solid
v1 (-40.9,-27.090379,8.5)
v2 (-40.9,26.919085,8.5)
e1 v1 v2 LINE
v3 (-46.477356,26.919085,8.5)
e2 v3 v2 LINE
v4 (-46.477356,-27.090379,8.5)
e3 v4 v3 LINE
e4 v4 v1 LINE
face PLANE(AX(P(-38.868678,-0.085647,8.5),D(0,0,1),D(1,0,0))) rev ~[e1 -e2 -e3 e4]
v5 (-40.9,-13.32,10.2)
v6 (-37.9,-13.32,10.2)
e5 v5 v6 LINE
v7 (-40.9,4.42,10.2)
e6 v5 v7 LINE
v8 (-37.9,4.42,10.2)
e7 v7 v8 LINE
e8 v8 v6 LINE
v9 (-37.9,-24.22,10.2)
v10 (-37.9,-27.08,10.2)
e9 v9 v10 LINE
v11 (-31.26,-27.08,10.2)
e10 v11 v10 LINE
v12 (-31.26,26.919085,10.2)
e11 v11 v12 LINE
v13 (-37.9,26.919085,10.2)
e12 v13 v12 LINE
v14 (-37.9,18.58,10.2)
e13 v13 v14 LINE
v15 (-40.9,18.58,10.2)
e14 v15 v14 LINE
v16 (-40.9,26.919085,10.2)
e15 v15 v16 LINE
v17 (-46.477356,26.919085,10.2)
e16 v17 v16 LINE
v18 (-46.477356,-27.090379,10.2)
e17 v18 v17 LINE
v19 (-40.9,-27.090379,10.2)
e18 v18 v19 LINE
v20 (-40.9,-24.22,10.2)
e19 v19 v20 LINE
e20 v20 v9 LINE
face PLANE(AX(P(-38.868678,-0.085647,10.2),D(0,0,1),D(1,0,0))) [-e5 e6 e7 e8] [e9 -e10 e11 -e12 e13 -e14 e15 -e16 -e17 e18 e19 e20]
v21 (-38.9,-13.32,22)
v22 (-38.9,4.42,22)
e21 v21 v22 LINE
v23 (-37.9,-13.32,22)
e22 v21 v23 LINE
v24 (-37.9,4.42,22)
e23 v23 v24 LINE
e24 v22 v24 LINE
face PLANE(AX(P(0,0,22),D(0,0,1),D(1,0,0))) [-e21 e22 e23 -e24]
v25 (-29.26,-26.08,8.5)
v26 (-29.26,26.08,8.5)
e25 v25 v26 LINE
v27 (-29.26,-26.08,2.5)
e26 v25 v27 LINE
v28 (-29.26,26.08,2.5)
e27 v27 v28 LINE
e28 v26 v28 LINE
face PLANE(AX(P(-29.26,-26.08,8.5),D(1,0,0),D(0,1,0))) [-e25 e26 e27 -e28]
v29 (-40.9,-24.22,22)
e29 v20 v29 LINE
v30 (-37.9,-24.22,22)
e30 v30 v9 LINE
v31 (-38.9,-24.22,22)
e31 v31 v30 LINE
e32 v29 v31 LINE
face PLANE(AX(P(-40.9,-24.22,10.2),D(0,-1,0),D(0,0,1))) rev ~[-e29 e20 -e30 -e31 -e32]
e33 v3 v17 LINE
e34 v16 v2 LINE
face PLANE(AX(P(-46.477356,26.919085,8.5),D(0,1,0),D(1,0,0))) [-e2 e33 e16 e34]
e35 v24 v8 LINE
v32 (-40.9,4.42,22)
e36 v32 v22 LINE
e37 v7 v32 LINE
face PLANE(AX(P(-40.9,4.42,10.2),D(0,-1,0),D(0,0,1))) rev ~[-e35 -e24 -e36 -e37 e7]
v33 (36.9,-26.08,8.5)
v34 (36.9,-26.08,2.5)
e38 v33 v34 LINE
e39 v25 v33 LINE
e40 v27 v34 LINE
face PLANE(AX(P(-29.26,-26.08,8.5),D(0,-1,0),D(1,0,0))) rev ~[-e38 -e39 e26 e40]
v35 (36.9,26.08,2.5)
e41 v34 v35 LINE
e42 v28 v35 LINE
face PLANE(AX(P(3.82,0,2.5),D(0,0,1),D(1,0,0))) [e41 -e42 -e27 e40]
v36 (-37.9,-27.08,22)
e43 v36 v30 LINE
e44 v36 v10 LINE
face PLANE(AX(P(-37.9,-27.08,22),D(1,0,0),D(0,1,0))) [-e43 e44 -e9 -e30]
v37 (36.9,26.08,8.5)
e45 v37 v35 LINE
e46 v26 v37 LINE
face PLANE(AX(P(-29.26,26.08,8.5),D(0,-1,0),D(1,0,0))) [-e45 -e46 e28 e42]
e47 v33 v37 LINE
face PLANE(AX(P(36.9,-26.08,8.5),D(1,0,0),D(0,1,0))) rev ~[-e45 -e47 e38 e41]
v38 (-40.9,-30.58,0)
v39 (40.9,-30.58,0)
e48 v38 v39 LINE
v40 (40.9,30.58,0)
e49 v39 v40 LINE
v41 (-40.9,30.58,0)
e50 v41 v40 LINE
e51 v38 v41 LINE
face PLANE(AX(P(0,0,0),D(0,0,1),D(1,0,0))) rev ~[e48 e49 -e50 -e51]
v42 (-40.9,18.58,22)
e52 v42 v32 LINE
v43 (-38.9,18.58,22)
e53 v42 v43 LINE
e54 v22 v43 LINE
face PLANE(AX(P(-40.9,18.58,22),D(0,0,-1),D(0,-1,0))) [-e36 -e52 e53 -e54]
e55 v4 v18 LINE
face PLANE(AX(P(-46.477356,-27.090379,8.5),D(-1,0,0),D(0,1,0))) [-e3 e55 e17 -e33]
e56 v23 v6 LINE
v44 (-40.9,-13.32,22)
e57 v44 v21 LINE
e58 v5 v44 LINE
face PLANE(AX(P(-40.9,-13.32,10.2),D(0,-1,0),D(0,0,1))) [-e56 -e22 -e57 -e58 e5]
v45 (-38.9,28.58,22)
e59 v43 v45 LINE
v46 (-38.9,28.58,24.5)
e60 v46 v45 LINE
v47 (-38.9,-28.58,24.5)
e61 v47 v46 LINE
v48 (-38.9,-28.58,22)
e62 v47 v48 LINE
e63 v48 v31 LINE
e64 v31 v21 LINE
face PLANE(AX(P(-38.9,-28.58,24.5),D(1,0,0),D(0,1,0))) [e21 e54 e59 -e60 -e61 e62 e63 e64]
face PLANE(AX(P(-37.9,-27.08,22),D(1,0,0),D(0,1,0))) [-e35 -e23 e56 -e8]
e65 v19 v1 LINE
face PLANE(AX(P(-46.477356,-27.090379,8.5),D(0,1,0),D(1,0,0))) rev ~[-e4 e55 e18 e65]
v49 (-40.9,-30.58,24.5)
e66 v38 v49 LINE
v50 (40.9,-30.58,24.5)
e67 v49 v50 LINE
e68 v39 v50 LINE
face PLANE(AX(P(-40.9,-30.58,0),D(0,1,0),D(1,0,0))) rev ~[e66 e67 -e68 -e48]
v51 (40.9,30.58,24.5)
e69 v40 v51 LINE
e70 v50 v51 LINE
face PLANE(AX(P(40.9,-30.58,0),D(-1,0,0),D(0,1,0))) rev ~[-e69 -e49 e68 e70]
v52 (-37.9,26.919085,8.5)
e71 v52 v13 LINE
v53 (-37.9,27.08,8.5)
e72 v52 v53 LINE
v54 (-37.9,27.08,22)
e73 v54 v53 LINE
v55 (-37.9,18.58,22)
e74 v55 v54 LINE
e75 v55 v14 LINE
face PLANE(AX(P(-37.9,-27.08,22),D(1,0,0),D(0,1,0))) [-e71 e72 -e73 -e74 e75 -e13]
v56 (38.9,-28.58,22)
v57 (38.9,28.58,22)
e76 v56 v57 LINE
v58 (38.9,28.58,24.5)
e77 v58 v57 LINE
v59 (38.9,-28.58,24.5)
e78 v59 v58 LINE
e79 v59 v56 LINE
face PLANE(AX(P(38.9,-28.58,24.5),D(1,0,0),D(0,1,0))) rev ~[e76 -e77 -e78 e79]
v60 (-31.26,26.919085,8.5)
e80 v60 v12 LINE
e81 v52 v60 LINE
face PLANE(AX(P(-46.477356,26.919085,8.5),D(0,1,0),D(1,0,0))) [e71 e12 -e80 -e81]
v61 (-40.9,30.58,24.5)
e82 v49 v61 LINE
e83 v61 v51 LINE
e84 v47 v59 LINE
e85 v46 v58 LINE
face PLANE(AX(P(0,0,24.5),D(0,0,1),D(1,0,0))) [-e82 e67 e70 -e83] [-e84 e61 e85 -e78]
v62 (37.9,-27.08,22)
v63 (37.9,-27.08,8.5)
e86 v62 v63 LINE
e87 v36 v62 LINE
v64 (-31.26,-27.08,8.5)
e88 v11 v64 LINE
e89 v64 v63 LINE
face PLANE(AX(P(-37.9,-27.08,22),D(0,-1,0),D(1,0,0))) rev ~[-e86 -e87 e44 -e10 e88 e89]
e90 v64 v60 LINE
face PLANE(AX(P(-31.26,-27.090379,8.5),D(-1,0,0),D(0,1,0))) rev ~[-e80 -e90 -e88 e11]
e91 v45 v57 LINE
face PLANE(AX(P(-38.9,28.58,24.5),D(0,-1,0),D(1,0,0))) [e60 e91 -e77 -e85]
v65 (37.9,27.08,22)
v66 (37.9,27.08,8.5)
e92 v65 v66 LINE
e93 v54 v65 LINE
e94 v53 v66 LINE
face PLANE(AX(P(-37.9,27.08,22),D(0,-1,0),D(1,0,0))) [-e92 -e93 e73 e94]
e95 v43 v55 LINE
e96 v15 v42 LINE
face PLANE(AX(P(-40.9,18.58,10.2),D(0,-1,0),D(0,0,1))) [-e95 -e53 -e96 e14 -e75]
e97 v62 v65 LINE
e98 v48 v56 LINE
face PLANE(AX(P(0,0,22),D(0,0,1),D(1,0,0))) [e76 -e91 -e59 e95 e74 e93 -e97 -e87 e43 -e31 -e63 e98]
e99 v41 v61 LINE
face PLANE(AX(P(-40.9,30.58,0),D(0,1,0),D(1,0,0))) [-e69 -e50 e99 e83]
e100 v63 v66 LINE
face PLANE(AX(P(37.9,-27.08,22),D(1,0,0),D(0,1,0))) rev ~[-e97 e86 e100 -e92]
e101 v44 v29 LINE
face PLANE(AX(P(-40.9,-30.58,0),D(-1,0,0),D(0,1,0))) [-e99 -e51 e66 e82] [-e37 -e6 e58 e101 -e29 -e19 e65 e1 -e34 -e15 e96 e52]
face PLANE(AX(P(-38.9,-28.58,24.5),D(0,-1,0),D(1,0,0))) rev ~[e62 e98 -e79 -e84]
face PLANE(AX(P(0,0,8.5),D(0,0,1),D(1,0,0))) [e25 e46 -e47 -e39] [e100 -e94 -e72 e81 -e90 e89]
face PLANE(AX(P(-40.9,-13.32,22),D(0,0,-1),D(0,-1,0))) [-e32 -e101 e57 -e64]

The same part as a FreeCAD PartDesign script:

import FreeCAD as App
import Part
import Sketcher
Q = App.Units.Quantity

doc = App.newDocument("Part")
body = doc.addObject("PartDesign::Body", "Body")

sketch1 = doc.addObject("Sketcher::SketchObject", "Sketch")
body.addObject(sketch1)
sketch1.AttachmentSupport = (doc.XY_Plane, [""])
sketch1.MapMode = "FlatFace"
sketch1.addGeometry(Part.LineSegment(App.Vector(-41, 31, 0), App.Vector(-41, -31, 0)), False)
sketch1.addGeometry(Part.LineSegment(App.Vector(-41, -31, 0), App.Vector(41, -31, 0)), False)
sketch1.addGeometry(Part.LineSegment(App.Vector(41, -31, 0), App.Vector(41, 31, 0)), False)
sketch1.addGeometry(Part.LineSegment(App.Vector(41, 31, 0), App.Vector(-41, 31, 0)), False)
sketch1.addConstraint(Sketcher.Constraint("Coincident", 0, 2, 1, 1))
sketch1.addConstraint(Sketcher.Constraint("Coincident", 1, 2, 2, 1))
sketch1.addConstraint(Sketcher.Constraint("Coincident", 2, 2, 3, 1))
sketch1.addConstraint(Sketcher.Constraint("Coincident", 3, 2, 0, 1))
sketch1.addConstraint(Sketcher.Constraint("Vertical", 0))
sketch1.addConstraint(Sketcher.Constraint("Horizontal", 1))
sketch1.addConstraint(Sketcher.Constraint("Vertical", 2))
sketch1.addConstraint(Sketcher.Constraint("Horizontal", 3))
sketch1.addConstraint(Sketcher.Constraint("Symmetric", 0, 2, 2, 2, -1, 1))
sketch1.addConstraint(Sketcher.Constraint("DistanceX", 1, 1, 1, 2, Q("81.8 mm")))
sketch1.addConstraint(Sketcher.Constraint("DistanceY", 0, 2, 0, 1, Q("61.16 mm")))
pad1 = doc.addObject("PartDesign::Pad", "Pad")
body.addObject(pad1)
pad1.Profile = sketch1
pad1.Length = 24.5

sketch2 = doc.addObject("Sketcher::SketchObject", "Sketch001")
body.addObject(sketch2)
sketch2.AttachmentSupport = (doc.XY_Plane, [""])
sketch2.MapMode = "FlatFace"
sketch2.AttachmentOffset = App.Placement(App.Vector(0, 0, 24.5), App.Rotation())
sketch2.addGeometry(Part.LineSegment(App.Vector(-39, 29, 0), App.Vector(-39, -29, 0)), False)
sketch2.addGeometry(Part.LineSegment(App.Vector(-39, -29, 0), App.Vector(39, -29, 0)), False)
sketch2.addGeometry(Part.LineSegment(App.Vector(39, -29, 0), App.Vector(39, 29, 0)), False)
sketch2.addGeometry(Part.LineSegment(App.Vector(39, 29, 0), App.Vector(-39, 29, 0)), False)
sketch2.addConstraint(Sketcher.Constraint("Coincident", 0, 2, 1, 1))
sketch2.addConstraint(Sketcher.Constraint("Coincident", 1, 2, 2, 1))
sketch2.addConstraint(Sketcher.Constraint("Coincident", 2, 2, 3, 1))
sketch2.addConstraint(Sketcher.Constraint("Coincident", 3, 2, 0, 1))
sketch2.addConstraint(Sketcher.Constraint("Vertical", 0))
sketch2.addConstraint(Sketcher.Constraint("Horizontal", 1))
sketch2.addConstraint(Sketcher.Constraint("Vertical", 2))
sketch2.addConstraint(Sketcher.Constraint("Horizontal", 3))
sketch2.addConstraint(Sketcher.Constraint("Symmetric", 0, 2, 2, 2, -1, 1))
sketch2.addConstraint(Sketcher.Constraint("DistanceX", 1, 1, 1, 2, Q("77.8 mm")))
sketch2.addConstraint(Sketcher.Constraint("DistanceY", 0, 2, 0, 1, Q("57.16 mm")))
pocket1 = doc.addObject("PartDesign::Pocket", "Pocket")
body.addObject(pocket1)
pocket1.Profile = sketch2
pocket1.Length = 2.5

sketch3 = doc.addObject("Sketcher::SketchObject", "Sketch002")
body.addObject(sketch3)
sketch3.AttachmentSupport = (doc.XY_Plane, [""])
sketch3.MapMode = "FlatFace"
sketch3.AttachmentOffset = App.Placement(App.Vector(0, 0, 22), App.Rotation())
sketch3.addGeometry(Part.LineSegment(App.Vector(-38, 27, 0), App.Vector(-38, -27, 0)), False)
sketch3.addGeometry(Part.LineSegment(App.Vector(-38, -27, 0), App.Vector(38, -27, 0)), False)
sketch3.addGeometry(Part.LineSegment(App.Vector(38, -27, 0), App.Vector(38, 27, 0)), False)
sketch3.addGeometry(Part.LineSegment(App.Vector(38, 27, 0), App.Vector(-38, 27, 0)), False)
sketch3.addConstraint(Sketcher.Constraint("Coincident", 0, 2, 1, 1))
sketch3.addConstraint(Sketcher.Constraint("Coincident", 1, 2, 2, 1))
sketch3.addConstraint(Sketcher.Constraint("Coincident", 2, 2, 3, 1))
sketch3.addConstraint(Sketcher.Constraint("Coincident", 3, 2, 0, 1))
sketch3.addConstraint(Sketcher.Constraint("Vertical", 0))
sketch3.addConstraint(Sketcher.Constraint("Horizontal", 1))
sketch3.addConstraint(Sketcher.Constraint("Vertical", 2))
sketch3.addConstraint(Sketcher.Constraint("Horizontal", 3))
sketch3.addConstraint(Sketcher.Constraint("Symmetric", 0, 2, 2, 2, -1, 1))
sketch3.addConstraint(Sketcher.Constraint("DistanceX", 1, 1, 1, 2, Q("75.8 mm")))
sketch3.addConstraint(Sketcher.Constraint("DistanceY", 0, 2, 0, 1, Q("54.16 mm")))
pocket2 = doc.addObject("PartDesign::Pocket", "Pocket001")
body.addObject(pocket2)
pocket2.Profile = sketch3
pocket2.Length = 13.5

sketch4 = doc.addObject("Sketcher::SketchObject", "Sketch003")
body.addObject(sketch4)
sketch4.AttachmentSupport = (doc.XY_Plane, [""])
sketch4.MapMode = "FlatFace"
sketch4.AttachmentOffset = App.Placement(App.Vector(0, 0, 8.5), App.Rotation())
sketch4.addGeometry(Part.LineSegment(App.Vector(-29, 26, 0), App.Vector(-29, -26, 0)), False)
sketch4.addGeometry(Part.LineSegment(App.Vector(-29, -26, 0), App.Vector(37, -26, 0)), False)
sketch4.addGeometry(Part.LineSegment(App.Vector(37, -26, 0), App.Vector(37, 26, 0)), False)
sketch4.addGeometry(Part.LineSegment(App.Vector(37, 26, 0), App.Vector(-29, 26, 0)), False)
sketch4.addConstraint(Sketcher.Constraint("Coincident", 0, 2, 1, 1))
sketch4.addConstraint(Sketcher.Constraint("Coincident", 1, 2, 2, 1))
sketch4.addConstraint(Sketcher.Constraint("Coincident", 2, 2, 3, 1))
sketch4.addConstraint(Sketcher.Constraint("Coincident", 3, 2, 0, 1))
sketch4.addConstraint(Sketcher.Constraint("Vertical", 0))
sketch4.addConstraint(Sketcher.Constraint("Horizontal", 1))
sketch4.addConstraint(Sketcher.Constraint("Vertical", 2))
sketch4.addConstraint(Sketcher.Constraint("Horizontal", 3))
sketch4.addConstraint(Sketcher.Constraint("DistanceX", 1, 1, 1, 2, Q("66.16 mm")))
sketch4.addConstraint(Sketcher.Constraint("DistanceY", 0, 2, 0, 1, Q("52.16 mm")))
sketch4.addConstraint(Sketcher.Constraint("DistanceX", -1, 1, 1, 2, Q("36.9 mm")))
sketch4.addConstraint(Sketcher.Constraint("DistanceY", 0, 2, -1, 1, Q("26.08 mm")))
pocket3 = doc.addObject("PartDesign::Pocket", "Pocket002")
body.addObject(pocket3)
pocket3.Profile = sketch4
pocket3.Length = 6

sketch5 = doc.addObject("Sketcher::SketchObject", "Sketch004")
body.addObject(sketch5)
sketch5.AttachmentSupport = (doc.XY_Plane, [""])
sketch5.MapMode = "FlatFace"
sketch5.AttachmentOffset = App.Placement(App.Vector(0, 0, 8.5), App.Rotation())
sketch5.addGeometry(Part.LineSegment(App.Vector(-46, 27, 0), App.Vector(-46, -27, 0)), False)
sketch5.addGeometry(Part.LineSegment(App.Vector(-46, -27, 0), App.Vector(-31, -27, 0)), False)
sketch5.addGeometry(Part.LineSegment(App.Vector(-31, -27, 0), App.Vector(-31, 27, 0)), False)
sketch5.addGeometry(Part.LineSegment(App.Vector(-31, 27, 0), App.Vector(-46, 27, 0)), False)
sketch5.addConstraint(Sketcher.Constraint("Coincident", 0, 2, 1, 1))
sketch5.addConstraint(Sketcher.Constraint("Coincident", 1, 2, 2, 1))
sketch5.addConstraint(Sketcher.Constraint("Coincident", 2, 2, 3, 1))
sketch5.addConstraint(Sketcher.Constraint("Coincident", 3, 2, 0, 1))
sketch5.addConstraint(Sketcher.Constraint("Vertical", 0))
sketch5.addConstraint(Sketcher.Constraint("Horizontal", 1))
sketch5.addConstraint(Sketcher.Constraint("Vertical", 2))
sketch5.addConstraint(Sketcher.Constraint("Horizontal", 3))
sketch5.addConstraint(Sketcher.Constraint("DistanceX", 1, 2, -1, 1, Q("31.26 mm")))
sketch5.addConstraint(Sketcher.Constraint("DistanceX", 1, 1, 1, 2, Q("15.217356 mm")))
sketch5.addConstraint(Sketcher.Constraint("DistanceY", 0, 2, 0, 1, Q("54.009464 mm")))
sketch5.addConstraint(Sketcher.Constraint("DistanceY", 0, 2, -1, 1, Q("27.090379 mm")))
pad2 = doc.addObject("PartDesign::Pad", "Pad001")
body.addObject(pad2)
pad2.Profile = sketch5
pad2.Length = 1.7

sketch6 = doc.addObject("Sketcher::SketchObject", "Sketch005")
body.addObject(sketch6)
sketch6.AttachmentSupport = (doc.YZ_Plane, [""])
sketch6.MapMode = "FlatFace"
sketch6.AttachmentOffset = App.Placement(App.Vector(0, 0, -40.9), App.Rotation())
sketch6.addGeometry(Part.LineSegment(App.Vector(19, 22, 0), App.Vector(19, 10, 0)), False)
sketch6.addGeometry(Part.LineSegment(App.Vector(19, 10, 0), App.Vector(4, 10, 0)), False)
sketch6.addGeometry(Part.LineSegment(App.Vector(4, 10, 0), App.Vector(4, 22, 0)), False)
sketch6.addGeometry(Part.LineSegment(App.Vector(4, 22, 0), App.Vector(19, 22, 0)), False)
sketch6.addGeometry(Part.LineSegment(App.Vector(-13, 22, 0), App.Vector(-13, 10, 0)), False)
sketch6.addGeometry(Part.LineSegment(App.Vector(-13, 10, 0), App.Vector(-24, 10, 0)), False)
sketch6.addGeometry(Part.LineSegment(App.Vector(-24, 10, 0), App.Vector(-24, 22, 0)), False)
sketch6.addGeometry(Part.LineSegment(App.Vector(-24, 22, 0), App.Vector(-13, 22, 0)), False)
sketch6.addConstraint(Sketcher.Constraint("Coincident", 0, 2, 1, 1))
sketch6.addConstraint(Sketcher.Constraint("Coincident", 1, 2, 2, 1))
sketch6.addConstraint(Sketcher.Constraint("Coincident", 2, 2, 3, 1))
sketch6.addConstraint(Sketcher.Constraint("Coincident", 3, 2, 0, 1))
sketch6.addConstraint(Sketcher.Constraint("Coincident", 4, 2, 5, 1))
sketch6.addConstraint(Sketcher.Constraint("Coincident", 5, 2, 6, 1))
sketch6.addConstraint(Sketcher.Constraint("Coincident", 6, 2, 7, 1))
sketch6.addConstraint(Sketcher.Constraint("Coincident", 7, 2, 4, 1))
sketch6.addConstraint(Sketcher.Constraint("Vertical", 0))
sketch6.addConstraint(Sketcher.Constraint("Horizontal", 1))
sketch6.addConstraint(Sketcher.Constraint("Vertical", 2))
sketch6.addConstraint(Sketcher.Constraint("Horizontal", 3))
sketch6.addConstraint(Sketcher.Constraint("Vertical", 4))
sketch6.addConstraint(Sketcher.Constraint("Horizontal", 5))
sketch6.addConstraint(Sketcher.Constraint("Vertical", 6))
sketch6.addConstraint(Sketcher.Constraint("Horizontal", 7))
sketch6.addConstraint(Sketcher.Constraint("Horizontal", 1, 2, 4, 2))
sketch6.addConstraint(Sketcher.Constraint("Horizontal", 3, 2, 6, 2))
sketch6.addConstraint(Sketcher.Constraint("DistanceX", 5, 2, 5, 1, Q("10.9 mm")))
sketch6.addConstraint(Sketcher.Constraint("DistanceY", 0, 2, 0, 1, Q("11.8 mm")))
sketch6.addConstraint(Sketcher.Constraint("DistanceY", -1, 1, 2, 2, Q("22 mm")))
sketch6.addConstraint(Sketcher.Constraint("DistanceX", 1, 2, 1, 1, Q("14.16 mm")))
sketch6.addConstraint(Sketcher.Constraint("DistanceX", 4, 2, 0, 2, Q("31.9 mm")))
sketch6.addConstraint(Sketcher.Constraint("DistanceX", -1, 1, 0, 2, Q("18.58 mm")))
pocket4 = doc.addObject("PartDesign::Pocket", "Pocket003")
body.addObject(pocket4)
pocket4.Profile = sketch6
pocket4.Length = 4
pocket4.Reversed = True

doc.recompute()
